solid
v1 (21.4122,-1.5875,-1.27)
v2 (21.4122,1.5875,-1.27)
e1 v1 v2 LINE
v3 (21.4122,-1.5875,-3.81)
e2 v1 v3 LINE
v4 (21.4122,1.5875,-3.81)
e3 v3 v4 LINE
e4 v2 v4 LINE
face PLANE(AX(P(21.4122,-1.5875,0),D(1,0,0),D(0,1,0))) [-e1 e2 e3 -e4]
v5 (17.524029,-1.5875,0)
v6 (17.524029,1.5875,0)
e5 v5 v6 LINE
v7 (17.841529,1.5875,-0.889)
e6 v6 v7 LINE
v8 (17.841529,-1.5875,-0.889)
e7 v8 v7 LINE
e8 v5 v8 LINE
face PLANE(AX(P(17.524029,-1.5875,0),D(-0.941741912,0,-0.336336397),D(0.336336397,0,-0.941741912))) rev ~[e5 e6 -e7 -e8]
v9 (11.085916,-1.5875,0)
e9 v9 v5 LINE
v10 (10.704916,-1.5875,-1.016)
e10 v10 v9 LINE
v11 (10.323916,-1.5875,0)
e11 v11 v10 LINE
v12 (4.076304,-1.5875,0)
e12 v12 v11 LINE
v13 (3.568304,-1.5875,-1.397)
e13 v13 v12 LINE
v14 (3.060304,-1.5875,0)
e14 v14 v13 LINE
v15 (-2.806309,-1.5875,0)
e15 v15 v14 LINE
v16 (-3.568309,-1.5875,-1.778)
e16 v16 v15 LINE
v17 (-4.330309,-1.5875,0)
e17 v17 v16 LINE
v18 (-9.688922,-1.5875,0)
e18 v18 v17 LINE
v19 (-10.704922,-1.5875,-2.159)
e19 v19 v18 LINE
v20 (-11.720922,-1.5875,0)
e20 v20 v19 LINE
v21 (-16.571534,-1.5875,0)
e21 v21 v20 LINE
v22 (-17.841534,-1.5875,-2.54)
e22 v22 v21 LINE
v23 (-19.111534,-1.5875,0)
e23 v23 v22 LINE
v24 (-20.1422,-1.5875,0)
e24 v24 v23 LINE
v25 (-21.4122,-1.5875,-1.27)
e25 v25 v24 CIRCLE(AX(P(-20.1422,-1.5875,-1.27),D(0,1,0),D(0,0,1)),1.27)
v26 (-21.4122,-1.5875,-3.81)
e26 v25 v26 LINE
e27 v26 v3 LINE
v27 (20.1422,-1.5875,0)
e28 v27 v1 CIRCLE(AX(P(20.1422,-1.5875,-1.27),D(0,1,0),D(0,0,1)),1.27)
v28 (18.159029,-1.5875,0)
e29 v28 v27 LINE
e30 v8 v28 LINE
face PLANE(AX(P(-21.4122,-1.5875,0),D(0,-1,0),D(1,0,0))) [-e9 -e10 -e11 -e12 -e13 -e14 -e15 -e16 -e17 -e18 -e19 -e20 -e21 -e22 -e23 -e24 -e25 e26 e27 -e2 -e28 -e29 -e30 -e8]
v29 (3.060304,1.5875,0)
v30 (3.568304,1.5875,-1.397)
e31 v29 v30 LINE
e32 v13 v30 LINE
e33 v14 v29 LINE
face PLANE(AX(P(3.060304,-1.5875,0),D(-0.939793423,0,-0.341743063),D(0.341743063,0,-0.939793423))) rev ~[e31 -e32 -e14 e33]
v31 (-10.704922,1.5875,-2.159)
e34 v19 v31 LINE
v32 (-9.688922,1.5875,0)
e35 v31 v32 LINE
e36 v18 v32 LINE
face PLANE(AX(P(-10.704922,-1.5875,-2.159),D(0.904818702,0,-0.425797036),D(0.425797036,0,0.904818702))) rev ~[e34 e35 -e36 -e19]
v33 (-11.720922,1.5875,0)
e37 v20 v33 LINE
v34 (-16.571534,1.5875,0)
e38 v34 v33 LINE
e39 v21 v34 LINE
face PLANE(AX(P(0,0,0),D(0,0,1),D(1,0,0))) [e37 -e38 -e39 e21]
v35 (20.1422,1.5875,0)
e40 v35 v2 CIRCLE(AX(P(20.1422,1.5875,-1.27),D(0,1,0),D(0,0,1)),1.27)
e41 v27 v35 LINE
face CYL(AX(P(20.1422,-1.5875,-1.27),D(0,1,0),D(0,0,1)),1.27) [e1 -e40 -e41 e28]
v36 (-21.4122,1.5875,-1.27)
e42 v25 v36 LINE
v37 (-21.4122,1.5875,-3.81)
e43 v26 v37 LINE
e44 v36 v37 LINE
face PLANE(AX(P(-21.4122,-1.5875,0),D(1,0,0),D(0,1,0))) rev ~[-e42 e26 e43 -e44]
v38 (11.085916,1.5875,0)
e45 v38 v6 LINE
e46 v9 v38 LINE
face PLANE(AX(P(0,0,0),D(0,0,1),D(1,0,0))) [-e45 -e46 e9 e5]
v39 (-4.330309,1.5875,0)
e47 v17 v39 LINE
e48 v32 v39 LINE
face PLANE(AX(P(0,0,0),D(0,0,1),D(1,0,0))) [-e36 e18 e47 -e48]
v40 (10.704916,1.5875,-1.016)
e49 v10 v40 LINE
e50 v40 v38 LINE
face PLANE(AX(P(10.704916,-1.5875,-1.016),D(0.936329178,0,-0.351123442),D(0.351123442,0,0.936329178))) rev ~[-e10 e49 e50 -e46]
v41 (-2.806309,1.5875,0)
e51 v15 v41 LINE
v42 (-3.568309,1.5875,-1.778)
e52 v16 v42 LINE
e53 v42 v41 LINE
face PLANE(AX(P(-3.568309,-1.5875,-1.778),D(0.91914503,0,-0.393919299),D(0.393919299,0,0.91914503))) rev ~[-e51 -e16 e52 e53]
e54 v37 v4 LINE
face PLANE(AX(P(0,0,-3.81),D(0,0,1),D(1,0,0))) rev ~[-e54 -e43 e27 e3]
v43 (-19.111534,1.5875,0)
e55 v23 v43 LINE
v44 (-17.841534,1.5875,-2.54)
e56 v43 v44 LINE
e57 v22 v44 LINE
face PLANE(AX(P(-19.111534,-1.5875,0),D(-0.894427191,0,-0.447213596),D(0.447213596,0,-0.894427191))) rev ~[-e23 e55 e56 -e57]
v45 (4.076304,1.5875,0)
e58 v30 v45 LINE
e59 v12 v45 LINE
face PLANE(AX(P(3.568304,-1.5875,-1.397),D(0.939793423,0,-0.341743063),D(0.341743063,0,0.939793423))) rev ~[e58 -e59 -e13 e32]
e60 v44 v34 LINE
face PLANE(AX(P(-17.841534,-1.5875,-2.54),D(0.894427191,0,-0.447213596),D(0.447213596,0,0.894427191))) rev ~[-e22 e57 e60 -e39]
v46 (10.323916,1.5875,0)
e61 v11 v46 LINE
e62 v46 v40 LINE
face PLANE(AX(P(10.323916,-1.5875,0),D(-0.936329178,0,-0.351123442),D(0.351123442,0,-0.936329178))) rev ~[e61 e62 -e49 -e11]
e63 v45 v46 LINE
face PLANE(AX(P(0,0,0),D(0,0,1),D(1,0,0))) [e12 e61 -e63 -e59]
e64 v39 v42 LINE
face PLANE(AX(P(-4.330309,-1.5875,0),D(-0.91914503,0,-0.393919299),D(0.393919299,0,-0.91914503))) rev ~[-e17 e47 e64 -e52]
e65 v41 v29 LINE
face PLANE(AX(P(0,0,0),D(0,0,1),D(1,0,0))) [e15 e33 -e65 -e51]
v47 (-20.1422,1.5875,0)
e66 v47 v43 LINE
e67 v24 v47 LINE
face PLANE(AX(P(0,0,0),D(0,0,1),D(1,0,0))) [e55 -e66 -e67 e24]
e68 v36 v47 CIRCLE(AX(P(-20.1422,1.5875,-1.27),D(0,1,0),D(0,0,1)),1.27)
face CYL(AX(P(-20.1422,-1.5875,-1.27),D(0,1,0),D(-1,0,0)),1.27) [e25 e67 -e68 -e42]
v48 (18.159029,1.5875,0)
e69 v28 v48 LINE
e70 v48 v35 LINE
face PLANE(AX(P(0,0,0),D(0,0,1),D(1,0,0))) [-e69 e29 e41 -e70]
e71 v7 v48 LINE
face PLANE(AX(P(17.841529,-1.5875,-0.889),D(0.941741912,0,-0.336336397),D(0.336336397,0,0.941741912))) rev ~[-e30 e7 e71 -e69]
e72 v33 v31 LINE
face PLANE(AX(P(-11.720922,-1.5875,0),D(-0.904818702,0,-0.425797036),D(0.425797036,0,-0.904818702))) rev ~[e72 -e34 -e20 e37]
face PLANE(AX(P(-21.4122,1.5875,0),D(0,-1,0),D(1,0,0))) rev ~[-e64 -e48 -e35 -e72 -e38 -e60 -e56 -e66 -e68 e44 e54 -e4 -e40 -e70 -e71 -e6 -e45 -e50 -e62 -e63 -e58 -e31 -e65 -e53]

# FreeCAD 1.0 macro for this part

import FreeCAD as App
import Part
import Sketcher

V = App.Vector
Q = App.Units.Quantity


def edges_at(feature, points):
    """Names of the edges that pass closest to the given points."""
    edges = feature.Shape.Edges
    near = lambda p: min(range(len(edges)), key=lambda i: edges[i].distToShape(Part.Vertex(*p))[0])
    return sorted({f"Edge{near(p) + 1}" for p in points})

doc = App.newDocument("Part")
body = doc.addObject("PartDesign::Body", "Body")

# Sketch on XY plane
sketch1 = body.newObject("Sketcher::SketchObject", "Sketch")
sketch1.AttachmentSupport = (doc.getObject("XY_Plane"), [""])
sketch1.MapMode = "FlatFace"
sketch1.addGeometry(Part.LineSegment(V(-21.4, 1.6, 0), V(-21.4, -1.6, 0)), False)
sketch1.addGeometry(Part.LineSegment(V(-21.4, -1.6, 0), V(21.4, -1.6, 0)), False)
sketch1.addGeometry(Part.LineSegment(V(21.4, -1.6, 0), V(21.4, 1.6, 0)), False)
sketch1.addGeometry(Part.LineSegment(V(21.4, 1.6, 0), V(-21.4, 1.6, 0)), False)
sketch1.addConstraint(Sketcher.Constraint("Coincident", 0, 2, 1, 1))
sketch1.addConstraint(Sketcher.Constraint("Coincident", 1, 2, 2, 1))
sketch1.addConstraint(Sketcher.Constraint("Coincident", 2, 2, 3, 1))
sketch1.addConstraint(Sketcher.Constraint("Coincident", 3, 2, 0, 1))
sketch1.addConstraint(Sketcher.Constraint("Vertical", 0))
sketch1.addConstraint(Sketcher.Constraint("Horizontal", 1))
sketch1.addConstraint(Sketcher.Constraint("Vertical", 2))
sketch1.addConstraint(Sketcher.Constraint("Horizontal", 3))
sketch1.addConstraint(Sketcher.Constraint("Symmetric", 0, 2, 2, 2, -1, 1))
sketch1.addConstraint(Sketcher.Constraint("DistanceX", 1, 1, 1, 2, Q("1.686 in")))
sketch1.addConstraint(Sketcher.Constraint("DistanceY", 0, 2, 0, 1, Q("0.125 in")))
pad1 = body.newObject("PartDesign::Pad", "Pad")
pad1.Profile = sketch1
pad1.Length = Q("0.15 in")
pad1.Reversed = True

# Sketch on XZ plane
sketch2 = body.newObject("Sketcher::SketchObject", "Sketch001")
sketch2.AttachmentSupport = (doc.getObject("XZ_Plane"), [""])
sketch2.MapMode = "FlatFace"
sketch2.AttachmentOffset = App.Placement(V(0, 0, 0.0625 * 25.4), App.Rotation())
sketch2.addGeometry(Part.LineSegment(V(-16.6, 0, 0), V(-19.1, 0, 0)), False)
sketch2.addGeometry(Part.LineSegment(V(-19.1, 0, 0), V(-17.8, -2.5, 0)), False)
sketch2.addGeometry(Part.LineSegment(V(-17.8, -2.5, 0), V(-16.6, 0, 0)), False)
sketch2.addGeometry(Part.LineSegment(V(-9.7, 0, 0), V(-11.7, 0, 0)), False)
sketch2.addGeometry(Part.LineSegment(V(-11.7, 0, 0), V(-10.7, -2.2, 0)), False)
sketch2.addGeometry(Part.LineSegment(V(-10.7, -2.2, 0), V(-9.7, 0, 0)), False)
sketch2.addGeometry(Part.LineSegment(V(-2.8, 0, 0), V(-4.3, 0, 0)), False)
sketch2.addGeometry(Part.LineSegment(V(-4.3, 0, 0), V(-3.6, -1.8, 0)), False)
sketch2.addGeometry(Part.LineSegment(V(-3.6, -1.8, 0), V(-2.8, 0, 0)), False)
sketch2.addGeometry(Part.LineSegment(V(4.1, 0, 0), V(3.1, 0, 0)), False)
sketch2.addGeometry(Part.LineSegment(V(3.1, 0, 0), V(3.6, -1.4, 0)), False)
sketch2.addGeometry(Part.LineSegment(V(3.6, -1.4, 0), V(4.1, 0, 0)), False)
sketch2.addGeometry(Part.LineSegment(V(10.7, -1, 0), V(11.1, 0, 0)), False)
sketch2.addGeometry(Part.LineSegment(V(11.1, 0, 0), V(10.3, 0, 0)), False)
sketch2.addGeometry(Part.LineSegment(V(10.3, 0, 0), V(10.7, -1, 0)), False)
sketch2.addGeometry(Part.LineSegment(V(17.8, -0.9, 0), V(18.2, 0, 0)), False)
sketch2.addGeometry(Part.LineSegment(V(18.2, 0, 0), V(17.5, 0, 0)), False)
sketch2.addGeometry(Part.LineSegment(V(17.5, 0, 0), V(17.8, -0.9, 0)), False)
sketch2.addConstraint(Sketcher.Constraint("Coincident", 0, 2, 1, 1))
sketch2.addConstraint(Sketcher.Constraint("Coincident", 1, 2, 2, 1))
sketch2.addConstraint(Sketcher.Constraint("Coincident", 2, 2, 0, 1))
sketch2.addConstraint(Sketcher.Constraint("Coincident", 3, 2, 4, 1))
sketch2.addConstraint(Sketcher.Constraint("Coincident", 4, 2, 5, 1))
sketch2.addConstraint(Sketcher.Constraint("Coincident", 5, 2, 3, 1))
sketch2.addConstraint(Sketcher.Constraint("Coincident", 6, 2, 7, 1))
sketch2.addConstraint(Sketcher.Constraint("Coincident", 7, 2, 8, 1))
sketch2.addConstraint(Sketcher.Constraint("Coincident", 8, 2, 6, 1))
sketch2.addConstraint(Sketcher.Constraint("Coincident", 9, 2, 10, 1))
sketch2.addConstraint(Sketcher.Constraint("Coincident", 10, 2, 11, 1))
sketch2.addConstraint(Sketcher.Constraint("Coincident", 11, 2, 9, 1))
sketch2.addConstraint(Sketcher.Constraint("Coincident", 12, 2, 13, 1))
sketch2.addConstraint(Sketcher.Constraint("Coincident", 13, 2, 14, 1))
sketch2.addConstraint(Sketcher.Constraint("Coincident", 14, 2, 12, 1))
sketch2.addConstraint(Sketcher.Constraint("Coincident", 15, 2, 16, 1))
sketch2.addConstraint(Sketcher.Constraint("Coincident", 16, 2, 17, 1))
sketch2.addConstraint(Sketcher.Constraint("Coincident", 17, 2, 15, 1))
sketch2.addConstraint(Sketcher.Constraint("Horizontal", 0))
sketch2.addConstraint(Sketcher.Constraint("Horizontal", 3))
sketch2.addConstraint(Sketcher.Constraint("Horizontal", 6))
sketch2.addConstraint(Sketcher.Constraint("Horizontal", 9))
sketch2.addConstraint(Sketcher.Constraint("Horizontal", 13))
sketch2.addConstraint(Sketcher.Constraint("Horizontal", 16))
sketch2.addConstraint(Sketcher.Constraint("PointOnObject", 0, 2, -1))
sketch2.addConstraint(Sketcher.Constraint("PointOnObject", 3, 2, -1))
sketch2.addConstraint(Sketcher.Constraint("PointOnObject", 6, 2, -1))
sketch2.addConstraint(Sketcher.Constraint("PointOnObject", 9, 2, -1))
sketch2.addConstraint(Sketcher.Constraint("PointOnObject", 12, 2, -1))
sketch2.addConstraint(Sketcher.Constraint("PointOnObject", 15, 2, -1))
sketch2.addConstraint(Sketcher.Constraint("Equal", 1, 2))
sketch2.addConstraint(Sketcher.Constraint("Equal", 4, 5))
sketch2.addConstraint(Sketcher.Constraint("Equal", 7, 8))
sketch2.addConstraint(Sketcher.Constraint("Equal", 10, 11))
sketch2.addConstraint(Sketcher.Constraint("Equal", 12, 14))
sketch2.addConstraint(Sketcher.Constraint("Equal", 15, 17))
sketch2.addConstraint(Sketcher.Constraint("DistanceX", 0, 2, 0, 1, Q("0.1 in")))
sketch2.addConstraint(Sketcher.Constraint("DistanceX", 3, 2, 3, 1, Q("0.08 in")))
sketch2.addConstraint(Sketcher.Constraint("DistanceX", 6, 2, 6, 1, Q("0.06 in")))
sketch2.addConstraint(Sketcher.Constraint("DistanceX", 9, 2, 9, 1, Q("0.04 in")))
sketch2.addConstraint(Sketcher.Constraint("DistanceX", 13, 2, 13, 1, Q("0.03 in")))
sketch2.addConstraint(Sketcher.Constraint("DistanceY", 1, 2, -1, 1, Q("0.1 in")))
sketch2.addConstraint(Sketcher.Constraint("DistanceX", 16, 2, 16, 1, Q("0.025 in")))
sketch2.addConstraint(Sketcher.Constraint("DistanceY", 7, 2, -1, 1, Q("0.07 in")))
sketch2.addConstraint(Sketcher.Constraint("DistanceY", 14, 2, -1, 1, Q("0.04 in")))
sketch2.addConstraint(Sketcher.Constraint("DistanceY", 4, 2, -1, 1, Q("0.085 in")))
sketch2.addConstraint(Sketcher.Constraint("DistanceY", 10, 2, -1, 1, Q("0.055 in")))
sketch2.addConstraint(Sketcher.Constraint("DistanceY", 17, 2, -1, 1, Q("0.035 in")))
sketch2.addConstraint(Sketcher.Constraint("DistanceX", 6, 2, -1, 1, 4.330309))
sketch2.addConstraint(Sketcher.Constraint("DistanceX", -1, 1, 15, 2, 18.159029))
sketch2.addConstraint(Sketcher.Constraint("DistanceX", 1, 2, 3, 2, 6.120612))
sketch2.addConstraint(Sketcher.Constraint("DistanceX", 11, 2, 12, 2, 7.009612))
sketch2.addConstraint(Sketcher.Constraint("DistanceX", 0, 2, -1, 1, 19.111534))
sketch2.addConstraint(Sketcher.Constraint("DistanceX", -1, 1, 9, 2, 3.060304))
pocket1 = body.newObject("PartDesign::Pocket", "Pocket")
pocket1.Profile = sketch2
pocket1.Type = "ThroughAll"
doc.recompute()

fillet = body.newObject("PartDesign::Fillet", "Fillet")
fillet.Base = (pocket1, edges_at(pocket1, [(-21.412, 0, 0), (21.412, 0, 0)]))
fillet.Radius = Q("0.05 in")

doc.recompute()
